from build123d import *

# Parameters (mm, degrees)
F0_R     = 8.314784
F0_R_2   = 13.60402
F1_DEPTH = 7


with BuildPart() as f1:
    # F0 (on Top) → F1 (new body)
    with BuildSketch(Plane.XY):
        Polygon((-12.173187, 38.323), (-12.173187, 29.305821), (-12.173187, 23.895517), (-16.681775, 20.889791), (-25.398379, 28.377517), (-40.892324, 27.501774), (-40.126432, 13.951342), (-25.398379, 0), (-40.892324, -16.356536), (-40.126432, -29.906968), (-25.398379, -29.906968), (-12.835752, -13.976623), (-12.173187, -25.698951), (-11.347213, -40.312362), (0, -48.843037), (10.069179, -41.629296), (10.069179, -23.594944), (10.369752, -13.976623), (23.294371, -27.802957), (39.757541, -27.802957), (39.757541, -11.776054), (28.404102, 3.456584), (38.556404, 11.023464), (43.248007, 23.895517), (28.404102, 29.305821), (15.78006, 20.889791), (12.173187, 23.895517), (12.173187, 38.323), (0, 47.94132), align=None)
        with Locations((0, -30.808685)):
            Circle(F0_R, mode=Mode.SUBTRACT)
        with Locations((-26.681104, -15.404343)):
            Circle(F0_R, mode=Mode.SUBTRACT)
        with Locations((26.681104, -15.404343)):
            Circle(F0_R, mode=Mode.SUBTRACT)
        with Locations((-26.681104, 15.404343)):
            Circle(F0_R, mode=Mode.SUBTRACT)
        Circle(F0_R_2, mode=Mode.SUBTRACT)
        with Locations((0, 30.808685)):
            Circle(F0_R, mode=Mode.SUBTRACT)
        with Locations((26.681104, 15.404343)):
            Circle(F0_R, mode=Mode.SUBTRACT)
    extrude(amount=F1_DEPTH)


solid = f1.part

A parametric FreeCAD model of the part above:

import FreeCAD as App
import Part
import Sketcher

doc = App.newDocument("Part")
body = doc.addObject("PartDesign::Body", "Body")

sketch1 = doc.addObject("Sketcher::SketchObject", "Sketch")
body.addObject(sketch1)
sketch1.AttachmentSupport = (doc.XY_Plane, [""])
sketch1.MapMode = "FlatFace"
sketch1.addGeometry([
    Part.LineSegment(App.Vector(-12.173187, 38.323, 0), App.Vector(-12.173187, 23.895517, 0)),
    Part.LineSegment(App.Vector(-12.173187, 23.895517, 0), App.Vector(-16.681775, 20.889791, 0)),
    Part.LineSegment(App.Vector(-16.681775, 20.889791, 0), App.Vector(-25.398379, 28.377517, 0)),
    Part.LineSegment(App.Vector(-25.398379, 28.377517, 0), App.Vector(-40.892324, 27.501774, 0)),
    Part.LineSegment(App.Vector(-40.892324, 27.501774, 0), App.Vector(-40.126432, 13.951342, 0)),
    Part.LineSegment(App.Vector(-40.126432, 13.951342, 0), App.Vector(-25.398379, 0, 0)),
    Part.LineSegment(App.Vector(-25.398379, 0, 0), App.Vector(-40.892324, -16.356536, 0)),
    Part.LineSegment(App.Vector(-40.892324, -16.356536, 0), App.Vector(-40.126432, -29.906968, 0)),
    Part.LineSegment(App.Vector(-40.126432, -29.906968, 0), App.Vector(-25.398379, -29.906968, 0)),
    Part.LineSegment(App.Vector(-25.398379, -29.906968, 0), App.Vector(-12.835752, -13.976623, 0)),
    Part.LineSegment(App.Vector(-12.835752, -13.976623, 0), App.Vector(-12.173187, -25.698951, 0)),
    Part.LineSegment(App.Vector(-12.173187, -25.698951, 0), App.Vector(-11.347213, -40.312362, 0)),
    Part.LineSegment(App.Vector(-11.347213, -40.312362, 0), App.Vector(0, -48.843037, 0)),
    Part.LineSegment(App.Vector(0, -48.843037, 0), App.Vector(10.069179, -41.629296, 0)),
    Part.LineSegment(App.Vector(10.069179, -41.629296, 0), App.Vector(10.069179, -23.594944, 0)),
    Part.LineSegment(App.Vector(10.069179, -23.594944, 0), App.Vector(10.369752, -13.976623, 0)),
    Part.LineSegment(App.Vector(10.369752, -13.976623, 0), App.Vector(23.294371, -27.802957, 0)),
    Part.LineSegment(App.Vector(23.294371, -27.802957, 0), App.Vector(39.757541, -27.802957, 0)),
    Part.LineSegment(App.Vector(39.757541, -27.802957, 0), App.Vector(39.757541, -11.776054, 0)),
    Part.LineSegment(App.Vector(39.757541, -11.776054, 0), App.Vector(28.404102, 3.456584, 0)),
    Part.LineSegment(App.Vector(28.404102, 3.456584, 0), App.Vector(38.556404, 11.023464, 0)),
    Part.LineSegment(App.Vector(38.556404, 11.023464, 0), App.Vector(43.248007, 23.895517, 0)),
    Part.LineSegment(App.Vector(43.248007, 23.895517, 0), App.Vector(28.404102, 29.305821, 0)),
    Part.LineSegment(App.Vector(28.404102, 29.305821, 0), App.Vector(15.78006, 20.889791, 0)),
    Part.LineSegment(App.Vector(15.78006, 20.889791, 0), App.Vector(12.173187, 23.895517, 0)),
    Part.LineSegment(App.Vector(12.173187, 23.895517, 0), App.Vector(12.173187, 38.323, 0)),
    Part.LineSegment(App.Vector(12.173187, 38.323, 0), App.Vector(0, 47.94132, 0)),
    Part.LineSegment(App.Vector(0, 47.94132, 0), App.Vector(-12.173187, 38.323, 0)),
    Part.Circle(App.Vector(0, -30.808685, 0), App.Vector(0, 0, 1), 8.314784),
    Part.Circle(App.Vector(-26.681104, -15.404343, 0), App.Vector(0, 0, 1), 8.314784),
    Part.Circle(App.Vector(0, 0, 0), App.Vector(0, 0, 1), 13.60402),
    Part.Circle(App.Vector(26.681104, -15.404343, 0), App.Vector(0, 0, 1), 8.314784),
    Part.Circle(App.Vector(-26.681104, 15.404343, 0), App.Vector(0, 0, 1), 8.314784),
    Part.Circle(App.Vector(0, 30.808685, 0), App.Vector(0, 0, 1), 8.314784),
    Part.Circle(App.Vector(26.681104, 15.404343, 0), App.Vector(0, 0, 1), 8.314784),
], False)
sketch1.addConstraint([
    Sketcher.Constraint("Coincident", 0, 2, 1, 1),
    Sketcher.Constraint("Coincident", 1, 2, 2, 1),
    Sketcher.Constraint("Coincident", 2, 2, 3, 1),
    Sketcher.Constraint("Coincident", 3, 2, 4, 1),
    Sketcher.Constraint("Coincident", 4, 2, 5, 1),
    Sketcher.Constraint("Coincident", 5, 2, 6, 1),
    Sketcher.Constraint("Coincident", 6, 2, 7, 1),
    Sketcher.Constraint("Coincident", 7, 2, 8, 1),
    Sketcher.Constraint("Coincident", 8, 2, 9, 1),
    Sketcher.Constraint("Coincident", 9, 2, 10, 1),
    Sketcher.Constraint("Coincident", 10, 2, 11, 1),
    Sketcher.Constraint("Coincident", 11, 2, 12, 1),
    Sketcher.Constraint("Coincident", 12, 2, 13, 1),
    Sketcher.Constraint("Coincident", 13, 2, 14, 1),
    Sketcher.Constraint("Coincident", 14, 2, 15, 1),
    Sketcher.Constraint("Coincident", 15, 2, 16, 1),
    Sketcher.Constraint("Coincident", 16, 2, 17, 1),
    Sketcher.Constraint("Coincident", 17, 2, 18, 1),
    Sketcher.Constraint("Coincident", 18, 2, 19, 1),
    Sketcher.Constraint("Coincident", 19, 2, 20, 1),
    Sketcher.Constraint("Coincident", 20, 2, 21, 1),
    Sketcher.Constraint("Coincident", 21, 2, 22, 1),
    Sketcher.Constraint("Coincident", 22, 2, 23, 1),
    Sketcher.Constraint("Coincident", 23, 2, 24, 1),
    Sketcher.Constraint("Coincident", 24, 2, 25, 1),
    Sketcher.Constraint("Coincident", 25, 2, 26, 1),
    Sketcher.Constraint("Coincident", 26, 2, 27, 1),
    Sketcher.Constraint("Coincident", 27, 2, 0, 1),
    Sketcher.Constraint("Vertical", 0),
    Sketcher.Constraint("Horizontal", 8),
    Sketcher.Constraint("Vertical", 14),
    Sketcher.Constraint("Horizontal", 17),
    Sketcher.Constraint("Vertical", 18),
    Sketcher.Constraint("Vertical", 25),
    Sketcher.Constraint("Coincident", 30, 3, -1, 1),
    Sketcher.Constraint("PointOnObject", 28, 3, -2),
    Sketcher.Constraint("PointOnObject", 33, 3, -2),
    Sketcher.Constraint("PointOnObject", 5, 2, -1),
    Sketcher.Constraint("PointOnObject", 12, 2, -2),
    Sketcher.Constraint("PointOnObject", 26, 2, -2),
    Sketcher.Constraint("Diameter", 30, 27.20804),
    Sketcher.Constraint("Diameter", 28, 16.629568),
    Sketcher.Constraint("Diameter", 29, 16.629568),
    Sketcher.Constraint("Diameter", 31, 16.629568),
    Sketcher.Constraint("Diameter", 32, 16.629568),
    Sketcher.Constraint("Diameter", 33, 16.629568),
    Sketcher.Constraint("Diameter", 34, 16.629568),
    Sketcher.Constraint("DistanceY", -1, 1, 25, 2, 38.323),
    Sketcher.Constraint("DistanceY", -1, 1, 27, 2, 38.323),
    Sketcher.Constraint("DistanceY", 0, 2, 2, 2, 4.482),
    Sketcher.Constraint("DistanceY", 4, 2, 32, 3, 1.453001),
    Sketcher.Constraint("DistanceX", 34, 3, 19, 2, 1.722998),
    Sketcher.Constraint("DistanceX", 31, 3, 19, 2, 1.722998),
    Sketcher.Constraint("DistanceX", 34, 3, 22, 2, 1.722998),
    Sketcher.Constraint("DistanceX", 17, 1, 17, 2, 16.46317),
    Sketcher.Constraint("DistanceY", 14, 1, 14, 2, 18.034352),
    Sketcher.Constraint("DistanceY", 14, 2, 31, 3, 8.190601),
    Sketcher.Constraint("DistanceX", 34, 3, 20, 2, 11.8753),
    Sketcher.Constraint("Distance", 1, 5.418649),
    Sketcher.Constraint("Distance", 4, 13.572059),
    Sketcher.Constraint("Distance", 5, 20.28683),
    Sketcher.Constraint("Distance", 6, 22.529949),
    Sketcher.Constraint("Distance", 7, 13.572059),
    Sketcher.Constraint("Distance", 19, 18.998259),
    Sketcher.Constraint("Distance", 23, 15.172211),
    Sketcher.Constraint("DistanceX", 8, 1, 8, 2, 14.728053),
    Sketcher.Constraint("DistanceY", 0, 2, 0, 1, 14.427483),
    Sketcher.Constraint("DistanceY", 18, 1, 18, 2, 16.026903),
    Sketcher.Constraint("DistanceY", 25, 1, 25, 2, 14.427483),
    Sketcher.Constraint("DistanceY", -1, 1, 1, 2, 20.889791),
    Sketcher.Constraint("DistanceX", 2, 2, -1, 1, 25.398379),
    Sketcher.Constraint("DistanceX", 5, 2, -1, 1, 25.398379),
    Sketcher.Constraint("DistanceX", 8, 2, -1, 1, 25.398379),
    Sketcher.Constraint("DistanceX", 9, 2, -1, 1, 12.835752),
    Sketcher.Constraint("DistanceY", 10, 2, -1, 1, 25.698951),
    Sketcher.Constraint("DistanceX", -1, 1, 13, 2, 10.069179),
    Sketcher.Constraint("DistanceX", -1, 1, 16, 2, 23.294371),
    Sketcher.Constraint("DistanceY", -1, 1, 22, 2, 29.305821),
    Sketcher.Constraint("DistanceX", -1, 1, 23, 2, 15.78006),
    Sketcher.Constraint("DistanceY", -1, 1, 23, 2, 20.889791),
    Sketcher.Constraint("DistanceY", -1, 1, 26, 2, 47.94132),
    Sketcher.Constraint("DistanceX", 29, 3, 31, 3, 53.362208),
    Sketcher.Constraint("DistanceX", 32, 3, 31, 3, 53.362208),
    Sketcher.Constraint("DistanceY", 28, 3, 33, 3, 61.61737),
    Sketcher.Constraint("DistanceX", 0, 2, 34, 3, 38.854291),
    Sketcher.Constraint("DistanceY", 29, 3, 0, 2, 39.29986),
    Sketcher.Constraint("DistanceX", 3, 2, 32, 3, 14.21122),
    Sketcher.Constraint("DistanceY", 32, 3, 3, 2, 12.097431),
    Sketcher.Constraint("DistanceY", 3, 2, 33, 3, 3.306911),
    Sketcher.Constraint("DistanceX", 6, 2, 29, 3, 14.21122),
    Sketcher.Constraint("DistanceY", 29, 3, 9, 2, 1.42772),
    Sketcher.Constraint("DistanceX", 8, 2, 10, 2, 13.225192),
    Sketcher.Constraint("DistanceY", 11, 2, 10, 2, 14.613411),
    Sketcher.Constraint("DistanceX", 9, 2, 11, 2, 1.488539),
    Sketcher.Constraint("DistanceY", 12, 2, 8, 2, 18.936069),
    Sketcher.Constraint("DistanceY", 12, 2, 13, 2, 7.213741),
    Sketcher.Constraint("DistanceY", 14, 2, 15, 2, 9.618321),
    Sketcher.Constraint("DistanceX", 15, 2, 31, 3, 16.311352),
    Sketcher.Constraint("DistanceY", 13, 2, 16, 2, 13.826339),
    Sketcher.Constraint("DistanceY", 19, 2, 34, 3, 11.947759),
    Sketcher.Constraint("DistanceY", 20, 2, 34, 3, 4.380879),
    Sketcher.Constraint("DistanceY", 18, 2, 21, 2, 35.671571),
    Sketcher.Constraint("Distance", 21, 13.700397),
    Sketcher.Constraint("Distance", 24, 4.695095),
])
pad1 = doc.addObject("PartDesign::Pad", "Pad")
body.addObject(pad1)
pad1.Profile = sketch1
pad1.Length = 7

doc.recompute()
